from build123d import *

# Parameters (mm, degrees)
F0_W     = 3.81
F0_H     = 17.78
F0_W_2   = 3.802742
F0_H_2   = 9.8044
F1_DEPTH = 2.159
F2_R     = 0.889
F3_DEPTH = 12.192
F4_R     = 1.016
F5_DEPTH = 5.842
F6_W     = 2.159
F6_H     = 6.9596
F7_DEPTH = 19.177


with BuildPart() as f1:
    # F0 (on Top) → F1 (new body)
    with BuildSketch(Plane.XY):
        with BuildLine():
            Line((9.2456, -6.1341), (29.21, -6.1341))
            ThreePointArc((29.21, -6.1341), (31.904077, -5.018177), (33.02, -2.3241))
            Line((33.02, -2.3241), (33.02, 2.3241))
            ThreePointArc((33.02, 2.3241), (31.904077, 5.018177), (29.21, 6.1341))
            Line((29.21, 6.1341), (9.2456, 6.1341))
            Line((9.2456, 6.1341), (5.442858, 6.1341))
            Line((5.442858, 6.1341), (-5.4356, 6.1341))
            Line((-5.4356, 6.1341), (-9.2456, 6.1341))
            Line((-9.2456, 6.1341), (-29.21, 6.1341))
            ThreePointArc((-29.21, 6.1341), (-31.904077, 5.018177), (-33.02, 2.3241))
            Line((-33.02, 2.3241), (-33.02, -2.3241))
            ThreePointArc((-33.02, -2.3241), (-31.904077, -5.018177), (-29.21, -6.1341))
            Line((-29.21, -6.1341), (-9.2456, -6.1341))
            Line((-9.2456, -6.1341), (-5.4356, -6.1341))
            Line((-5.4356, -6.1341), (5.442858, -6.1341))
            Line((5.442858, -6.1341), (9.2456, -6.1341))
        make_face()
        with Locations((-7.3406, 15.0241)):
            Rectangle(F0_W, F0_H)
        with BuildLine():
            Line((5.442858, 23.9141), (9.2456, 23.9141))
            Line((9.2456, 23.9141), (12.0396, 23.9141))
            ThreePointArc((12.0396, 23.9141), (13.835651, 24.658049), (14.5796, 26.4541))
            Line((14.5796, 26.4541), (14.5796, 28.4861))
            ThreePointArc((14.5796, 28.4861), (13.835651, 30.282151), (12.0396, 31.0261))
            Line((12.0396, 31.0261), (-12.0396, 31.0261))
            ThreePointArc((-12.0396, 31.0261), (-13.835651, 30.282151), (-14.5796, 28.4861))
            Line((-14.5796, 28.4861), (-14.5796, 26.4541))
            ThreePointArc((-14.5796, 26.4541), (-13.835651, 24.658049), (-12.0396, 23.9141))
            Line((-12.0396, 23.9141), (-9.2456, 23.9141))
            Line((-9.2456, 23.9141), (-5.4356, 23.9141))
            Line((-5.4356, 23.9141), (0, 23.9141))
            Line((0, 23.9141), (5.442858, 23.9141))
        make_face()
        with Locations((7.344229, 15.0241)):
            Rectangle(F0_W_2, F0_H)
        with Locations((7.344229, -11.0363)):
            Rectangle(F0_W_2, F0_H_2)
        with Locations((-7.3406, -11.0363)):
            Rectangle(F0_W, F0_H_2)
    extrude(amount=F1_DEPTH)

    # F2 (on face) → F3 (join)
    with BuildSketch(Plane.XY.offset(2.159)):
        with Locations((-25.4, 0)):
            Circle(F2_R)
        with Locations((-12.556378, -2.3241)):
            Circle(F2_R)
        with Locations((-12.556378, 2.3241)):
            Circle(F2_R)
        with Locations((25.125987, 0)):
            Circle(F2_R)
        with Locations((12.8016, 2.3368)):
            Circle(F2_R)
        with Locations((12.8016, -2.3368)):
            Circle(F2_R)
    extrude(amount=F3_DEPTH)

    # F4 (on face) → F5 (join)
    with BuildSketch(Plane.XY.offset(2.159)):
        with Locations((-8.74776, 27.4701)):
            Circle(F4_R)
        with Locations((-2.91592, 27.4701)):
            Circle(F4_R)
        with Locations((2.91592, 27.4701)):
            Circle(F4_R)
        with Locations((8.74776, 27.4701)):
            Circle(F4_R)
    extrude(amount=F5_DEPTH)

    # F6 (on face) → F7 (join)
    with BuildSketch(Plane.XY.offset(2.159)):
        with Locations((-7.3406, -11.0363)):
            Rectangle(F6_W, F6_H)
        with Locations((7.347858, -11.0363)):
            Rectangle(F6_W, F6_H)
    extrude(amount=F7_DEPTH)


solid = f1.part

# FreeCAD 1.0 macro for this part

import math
import FreeCAD as App
import Part
import Sketcher

V = App.Vector
Q = App.Units.Quantity


def add_polygon(sketch, points):
    """Adds a closed chain of lines whose ends are joined by coincident constraints."""
    first, n = sketch.GeometryCount, len(points)
    for a, b in zip(points, points[1:] + points[:1]):
        sketch.addGeometry(Part.LineSegment(App.Vector(*a, 0), App.Vector(*b, 0)), False)
    for i in range(n):
        sketch.addConstraint(Sketcher.Constraint("Coincident", first + i, 2, first + (i + 1) % n, 1))

doc = App.newDocument("Part")
params = doc.addObject("Spreadsheet::Sheet", "Params")
for row, (alias, value) in enumerate([
    ("sketch1_radius", "0.1 in"),
    ("sketch1_radius2", "0.15 in"),
    ("sketch1_height", "0.7 in"),
    ("sketch1_width", "0.11 in"),
    ("sketch1_width2", "0.15 in"),
    ("pad1_length", "0.085 in"),
    ("sketch2_diameter", "0.07 in"),
    ("pad2_length", "0.48 in"),
    ("sketch3_diameter", "0.08 in"),
    ("pad3_length", "0.23 in"),
    ("sketch4_width", "0.085 in"),
    ("sketch4_height", "0.274 in"),
    ("pad4_length", "0.755 in"),
], start=1):
    params.set(f"A{row}", alias)
    params.set(f"B{row}", "=" + value)
    params.setAlias(f"B{row}", alias)

body = doc.addObject("PartDesign::Body", "Body")

# Sketch on XY plane
sketch1 = body.newObject("Sketcher::SketchObject", "Sketch")
sketch1.AttachmentSupport = (doc.getObject("XY_Plane"), [""])
sketch1.MapMode = "FlatFace"
sketch1.addGeometry(Part.ArcOfCircle(Part.Circle(V(29.2, -2.3, 0), V(0, 0, 1), 3.8), math.radians(-90), math.radians(0)), False)  # 0
sketch1.addGeometry(Part.LineSegment(V(33, -2.3, 0), V(33, 2.3, 0)), False)  # 1
sketch1.addGeometry(Part.ArcOfCircle(Part.Circle(V(29.2, 2.3, 0), V(0, 0, 1), 3.8), math.radians(0), math.radians(90)), False)  # 2
sketch1.addGeometry(Part.LineSegment(V(29.2, 6.1, 0), V(9.2, 6.1, 0)), False)  # 3
sketch1.addGeometry(Part.LineSegment(V(9.2, 6.1, 0), V(9.2, 23.9, 0)), False)  # 4
sketch1.addGeometry(Part.LineSegment(V(9.2, 23.9, 0), V(12, 23.9, 0)), False)  # 5
sketch1.addGeometry(Part.ArcOfCircle(Part.Circle(V(12, 26.5, 0), V(0, 0, 1), 2.5), math.radians(-90), math.radians(0)), False)  # 6
sketch1.addGeometry(Part.LineSegment(V(14.6, 26.5, 0), V(14.6, 28.5, 0)), False)  # 7
sketch1.addGeometry(Part.ArcOfCircle(Part.Circle(V(12, 28.5, 0), V(0, 0, 1), 2.5), math.radians(0), math.radians(90)), False)  # 8
sketch1.addGeometry(Part.LineSegment(V(12, 31, 0), V(-12, 31, 0)), False)  # 9
sketch1.addGeometry(Part.ArcOfCircle(Part.Circle(V(-12, 28.5, 0), V(0, 0, 1), 2.5), math.radians(90), math.radians(180)), False)  # 10
sketch1.addGeometry(Part.LineSegment(V(-14.6, 28.5, 0), V(-14.6, 26.5, 0)), False)  # 11
sketch1.addGeometry(Part.ArcOfCircle(Part.Circle(V(-12, 26.5, 0), V(0, 0, 1), 2.5), math.radians(-180), math.radians(-90)), False)  # 12
sketch1.addGeometry(Part.LineSegment(V(-12, 23.9, 0), V(-9.2, 23.9, 0)), False)  # 13
sketch1.addGeometry(Part.LineSegment(V(-9.2, 23.9, 0), V(-9.2, 6.1, 0)), False)  # 14
sketch1.addGeometry(Part.LineSegment(V(-9.2, 6.1, 0), V(-29.2, 6.1, 0)), False)  # 15
sketch1.addGeometry(Part.ArcOfCircle(Part.Circle(V(-29.2, 2.3, 0), V(0, 0, 1), 3.8), math.radians(90), math.radians(180)), False)  # 16
sketch1.addGeometry(Part.LineSegment(V(-33, 2.3, 0), V(-33, -2.3, 0)), False)  # 17
sketch1.addGeometry(Part.ArcOfCircle(Part.Circle(V(-29.2, -2.3, 0), V(0, 0, 1), 3.8), math.radians(180), math.radians(270)), False)  # 18
sketch1.addGeometry(Part.LineSegment(V(-29.2, -6.1, 0), V(-9.2, -6.1, 0)), False)  # 19
sketch1.addGeometry(Part.LineSegment(V(-9.2, -6.1, 0), V(-9.2, -15.9, 0)), False)  # 20
sketch1.addGeometry(Part.LineSegment(V(-9.2, -15.9, 0), V(-5.4, -15.9, 0)), False)  # 21
sketch1.addGeometry(Part.LineSegment(V(-5.4, -15.9, 0), V(-5.4, -6.1, 0)), False)  # 22
sketch1.addGeometry(Part.LineSegment(V(-5.4, -6.1, 0), V(5.4, -6.1, 0)), False)  # 23
sketch1.addGeometry(Part.LineSegment(V(5.4, -6.1, 0), V(5.4, -15.9, 0)), False)  # 24
sketch1.addGeometry(Part.LineSegment(V(5.4, -15.9, 0), V(9.2, -15.9, 0)), False)  # 25
sketch1.addGeometry(Part.LineSegment(V(9.2, -15.9, 0), V(9.2, -6.1, 0)), False)  # 26
sketch1.addGeometry(Part.LineSegment(V(9.2, -6.1, 0), V(29.2, -6.1, 0)), False)  # 27
add_polygon(sketch1, [(5.4, 6.1), (-5.4, 6.1), (-5.4, 23.9), (5.4, 23.9)])  # lines 28-31
sketch1.addConstraint([
    Sketcher.Constraint("Tangent", 0, 2, 1, 1),
    Sketcher.Constraint("Tangent", 1, 2, 2, 1),
    Sketcher.Constraint("Tangent", 2, 2, 3, 1),
    Sketcher.Constraint("Coincident", 3, 2, 4, 1),
    Sketcher.Constraint("Coincident", 4, 2, 5, 1),
    Sketcher.Constraint("Tangent", 5, 2, 6, 1),
    Sketcher.Constraint("Tangent", 6, 2, 7, 1),
    Sketcher.Constraint("Tangent", 7, 2, 8, 1),
    Sketcher.Constraint("Tangent", 8, 2, 9, 1),
    Sketcher.Constraint("Tangent", 9, 2, 10, 1),
    Sketcher.Constraint("Tangent", 10, 2, 11, 1),
    Sketcher.Constraint("Tangent", 11, 2, 12, 1),
    Sketcher.Constraint("Tangent", 12, 2, 13, 1),
    Sketcher.Constraint("Coincident", 13, 2, 14, 1),
    Sketcher.Constraint("Coincident", 14, 2, 15, 1),
    Sketcher.Constraint("Tangent", 15, 2, 16, 1),
    Sketcher.Constraint("Tangent", 16, 2, 17, 1),
    Sketcher.Constraint("Tangent", 17, 2, 18, 1),
    Sketcher.Constraint("Tangent", 18, 2, 19, 1),
    Sketcher.Constraint("Coincident", 19, 2, 20, 1),
    Sketcher.Constraint("Coincident", 20, 2, 21, 1),
    Sketcher.Constraint("Coincident", 21, 2, 22, 1),
    Sketcher.Constraint("Coincident", 22, 2, 23, 1),
    Sketcher.Constraint("Coincident", 23, 2, 24, 1),
    Sketcher.Constraint("Coincident", 24, 2, 25, 1),
    Sketcher.Constraint("Coincident", 25, 2, 26, 1),
    Sketcher.Constraint("Coincident", 26, 2, 27, 1),
    Sketcher.Constraint("Tangent", 27, 2, 0, 1),
    Sketcher.Constraint("Vertical", 1),
    Sketcher.Constraint("Horizontal", 3),
    Sketcher.Constraint("Vertical", 4),
    Sketcher.Constraint("Horizontal", 5),
    Sketcher.Constraint("Vertical", 7),
    Sketcher.Constraint("Horizontal", 9),
    Sketcher.Constraint("Vertical", 11),
    Sketcher.Constraint("Horizontal", 13),
    Sketcher.Constraint("Vertical", 14),
    Sketcher.Constraint("Horizontal", 15),
    Sketcher.Constraint("Vertical", 17),
    Sketcher.Constraint("Horizontal", 19),
    Sketcher.Constraint("Vertical", 20),
    Sketcher.Constraint("Horizontal", 21),
    Sketcher.Constraint("Vertical", 22),
    Sketcher.Constraint("Horizontal", 23),
    Sketcher.Constraint("Vertical", 24),
    Sketcher.Constraint("Horizontal", 25),
    Sketcher.Constraint("Vertical", 26),
    Sketcher.Constraint("Horizontal", 27),
    Sketcher.Constraint("Horizontal", 28),
    Sketcher.Constraint("Vertical", 29),
    Sketcher.Constraint("Horizontal", 30),
    Sketcher.Constraint("Vertical", 31),
    Sketcher.Constraint("Equal", 0, 2),
    Sketcher.Constraint("Equal", 6, 8),
    Sketcher.Constraint("Equal", 8, 10),
    Sketcher.Constraint("Equal", 10, 12),
    Sketcher.Constraint("Equal", 2, 16),
    Sketcher.Constraint("Equal", 16, 18),
    Sketcher.Constraint("Symmetric", 0, 3, 16, 3, -1, 1),
    Sketcher.Constraint("Symmetric", 3, 2, 19, 2, -1, 1),
    Sketcher.Constraint("Symmetric", 6, 3, 12, 3, -2),
    Sketcher.Constraint("Symmetric", 3, 2, 14, 2, -2),
    Sketcher.Constraint("Symmetric", 20, 2, 25, 2, -2),
    Sketcher.Constraint("Symmetric", 22, 2, 28, 2, -1),
    Sketcher.Constraint("Horizontal", 19, 2, 22, 2),
    Sketcher.Constraint("Horizontal", 13, 2, 29, 2),
    Sketcher.Constraint("Vertical", 24, 2, 30, 2),
    Sketcher.Constraint("Radius", 6, Q("0.1 in")),
    Sketcher.Constraint("Radius", 0, Q("0.15 in")),
    Sketcher.Constraint("DistanceY", 4, 1, 4, 2, Q("0.7 in")),
    Sketcher.Constraint("DistanceX", 5, 1, 5, 2, Q("0.11 in")),
    Sketcher.Constraint("DistanceX", 21, 1, 21, 2, Q("0.15 in")),
    Sketcher.Constraint("DistanceY", 7, 1, 7, 2, Q("0.08 in")),
    Sketcher.Constraint("DistanceX", -1, 1, 0, 2, Q("1.3 in")),
    Sketcher.Constraint("DistanceX", 3, 2, 3, 1, Q("0.786 in")),
    Sketcher.Constraint("DistanceY", 1, 1, 1, 2, Q("0.183 in")),
    Sketcher.Constraint("DistanceY", 20, 2, 20, 1, Q("0.386 in")),
    Sketcher.Constraint("DistanceX", 25, 1, 25, 2, 3.802742),
])
sketch1.setExpression("Constraints[71]", "Params.sketch1_radius")
sketch1.setExpression("Constraints[72]", "Params.sketch1_radius2")
sketch1.setExpression("Constraints[73]", "Params.sketch1_height")
sketch1.setExpression("Constraints[74]", "Params.sketch1_width")
sketch1.setExpression("Constraints[75]", "Params.sketch1_width2")
pad1 = body.newObject("PartDesign::Pad", "Pad")
pad1.Profile = sketch1
pad1.setExpression("Length", "Params.pad1_length")

# Sketch on XY plane
sketch2 = body.newObject("Sketcher::SketchObject", "Sketch001")
sketch2.AttachmentSupport = (doc.getObject("XY_Plane"), [""])
sketch2.MapMode = "FlatFace"
sketch2.AttachmentOffset = App.Placement(V(0, 0, 0.085 * 25.4), App.Rotation())
sketch2.addGeometry([
    Part.Circle(V(-25.4, 0, 0), V(0, 0, 1), 0.9),  # 0
    Part.Circle(V(-12.6, -2.3, 0), V(0, 0, 1), 0.9),  # 1
    Part.Circle(V(-12.6, 2.3, 0), V(0, 0, 1), 0.9),  # 2
    Part.Circle(V(25.1, 0, 0), V(0, 0, 1), 0.9),  # 3
    Part.Circle(V(12.8, 2.3, 0), V(0, 0, 1), 0.9),  # 4
    Part.Circle(V(12.8, -2.3, 0), V(0, 0, 1), 0.9),  # 5
], False)
sketch2.addConstraint([
    Sketcher.Constraint("Equal", 0, 1),
    Sketcher.Constraint("Equal", 1, 2),
    Sketcher.Constraint("Equal", 2, 3),
    Sketcher.Constraint("Equal", 3, 4),
    Sketcher.Constraint("Equal", 4, 5),
    Sketcher.Constraint("Symmetric", 1, 3, 2, 3, -1),
    Sketcher.Constraint("Symmetric", 4, 3, 5, 3, -1),
    Sketcher.Constraint("PointOnObject", 0, 3, -1),
    Sketcher.Constraint("PointOnObject", 3, 3, -1),
    Sketcher.Constraint("Diameter", 0, Q("0.07 in")),
    Sketcher.Constraint("DistanceX", 0, 3, -1, 1, Q("1 in")),
    Sketcher.Constraint("DistanceX", -1, 1, 4, 3, Q("0.504 in")),
    Sketcher.Constraint("DistanceY", -1, 1, 4, 3, Q("0.092 in")),
    Sketcher.Constraint("DistanceY", 1, 3, 2, 3, Q("0.183 in")),
    Sketcher.Constraint("DistanceX", 0, 3, 1, 3, 12.843622),
    Sketcher.Constraint("DistanceX", -1, 1, 3, 3, 25.125987),
])
sketch2.setExpression("Constraints[9]", "Params.sketch2_diameter")
pad2 = body.newObject("PartDesign::Pad", "Pad001")
pad2.Profile = sketch2
pad2.setExpression("Length", "Params.pad2_length")

# Sketch on XY plane
sketch3 = body.newObject("Sketcher::SketchObject", "Sketch002")
sketch3.AttachmentSupport = (doc.getObject("XY_Plane"), [""])
sketch3.MapMode = "FlatFace"
sketch3.AttachmentOffset = App.Placement(V(0, 0, 0.085 * 25.4), App.Rotation())
sketch3.addGeometry([
    Part.Circle(V(-8.7, 27.5, 0), V(0, 0, 1), 1),
    Part.Circle(V(-2.9, 27.5, 0), V(0, 0, 1), 1),
    Part.Circle(V(2.9, 27.5, 0), V(0, 0, 1), 1),
    Part.Circle(V(8.7, 27.5, 0), V(0, 0, 1), 1),
], False)
sketch3.addConstraint([
    Sketcher.Constraint("Equal", 0, 1),
    Sketcher.Constraint("Equal", 1, 2),
    Sketcher.Constraint("Equal", 2, 3),
    Sketcher.Constraint("Symmetric", 1, 3, 2, 3, -2),
    Sketcher.Constraint("Symmetric", 0, 3, 3, 3, -2),
    Sketcher.Constraint("Horizontal", 0, 3, 1, 3),
    Sketcher.Constraint("Diameter", 0, Q("0.08 in")),
    Sketcher.Constraint("DistanceX", 0, 3, -1, 1, Q("0.3444 in")),
    Sketcher.Constraint("DistanceY", -1, 1, 0, 3, Q("1.0815 in")),
    Sketcher.Constraint("DistanceX", 1, 3, -1, 1, Q("0.1148 in")),
])
sketch3.setExpression("Constraints[6]", "Params.sketch3_diameter")
pad3 = body.newObject("PartDesign::Pad", "Pad002")
pad3.Profile = sketch3
pad3.setExpression("Length", "Params.pad3_length")

# Sketch on XY plane
sketch4 = body.newObject("Sketcher::SketchObject", "Sketch003")
sketch4.AttachmentSupport = (doc.getObject("XY_Plane"), [""])
sketch4.MapMode = "FlatFace"
sketch4.AttachmentOffset = App.Placement(V(0, 0, 0.085 * 25.4), App.Rotation())
add_polygon(sketch4, [(-8.4, -7.6), (-8.4, -14.5), (-6.3, -14.5), (-6.3, -7.6)])  # lines 0-3
add_polygon(sketch4, [(6.3, -7.6), (6.3, -14.5), (8.4, -14.5), (8.4, -7.6)])  # lines 4-7
sketch4.addConstraint([
    Sketcher.Constraint("Vertical", 0),
    Sketcher.Constraint("Horizontal", 1),
    Sketcher.Constraint("Vertical", 2),
    Sketcher.Constraint("Horizontal", 3),
    Sketcher.Constraint("Vertical", 4),
    Sketcher.Constraint("Horizontal", 5),
    Sketcher.Constraint("Vertical", 6),
    Sketcher.Constraint("Horizontal", 7),
    Sketcher.Constraint("Horizontal", 1, 2, 4, 2),
    Sketcher.Constraint("Horizontal", 3, 2, 6, 2),
    Sketcher.Constraint("Equal", 3, 5),
    Sketcher.Constraint("DistanceX", 1, 1, 1, 2, Q("0.085 in")),
    Sketcher.Constraint("DistanceY", 0, 2, 0, 1, Q("0.274 in")),
    Sketcher.Constraint("DistanceX", 0, 2, -1, 1, Q("0.3315 in")),
    Sketcher.Constraint("DistanceY", 0, 2, -1, 1, Q("0.5715 in")),
    Sketcher.Constraint("DistanceX", 0, 2, 4, 2, 14.688458),
])
sketch4.setExpression("Constraints[19]", "Params.sketch4_width")
sketch4.setExpression("Constraints[20]", "Params.sketch4_height")
pad4 = body.newObject("PartDesign::Pad", "Pad003")
pad4.Profile = sketch4
pad4.setExpression("Length", "Params.pad4_length")

doc.recompute()
